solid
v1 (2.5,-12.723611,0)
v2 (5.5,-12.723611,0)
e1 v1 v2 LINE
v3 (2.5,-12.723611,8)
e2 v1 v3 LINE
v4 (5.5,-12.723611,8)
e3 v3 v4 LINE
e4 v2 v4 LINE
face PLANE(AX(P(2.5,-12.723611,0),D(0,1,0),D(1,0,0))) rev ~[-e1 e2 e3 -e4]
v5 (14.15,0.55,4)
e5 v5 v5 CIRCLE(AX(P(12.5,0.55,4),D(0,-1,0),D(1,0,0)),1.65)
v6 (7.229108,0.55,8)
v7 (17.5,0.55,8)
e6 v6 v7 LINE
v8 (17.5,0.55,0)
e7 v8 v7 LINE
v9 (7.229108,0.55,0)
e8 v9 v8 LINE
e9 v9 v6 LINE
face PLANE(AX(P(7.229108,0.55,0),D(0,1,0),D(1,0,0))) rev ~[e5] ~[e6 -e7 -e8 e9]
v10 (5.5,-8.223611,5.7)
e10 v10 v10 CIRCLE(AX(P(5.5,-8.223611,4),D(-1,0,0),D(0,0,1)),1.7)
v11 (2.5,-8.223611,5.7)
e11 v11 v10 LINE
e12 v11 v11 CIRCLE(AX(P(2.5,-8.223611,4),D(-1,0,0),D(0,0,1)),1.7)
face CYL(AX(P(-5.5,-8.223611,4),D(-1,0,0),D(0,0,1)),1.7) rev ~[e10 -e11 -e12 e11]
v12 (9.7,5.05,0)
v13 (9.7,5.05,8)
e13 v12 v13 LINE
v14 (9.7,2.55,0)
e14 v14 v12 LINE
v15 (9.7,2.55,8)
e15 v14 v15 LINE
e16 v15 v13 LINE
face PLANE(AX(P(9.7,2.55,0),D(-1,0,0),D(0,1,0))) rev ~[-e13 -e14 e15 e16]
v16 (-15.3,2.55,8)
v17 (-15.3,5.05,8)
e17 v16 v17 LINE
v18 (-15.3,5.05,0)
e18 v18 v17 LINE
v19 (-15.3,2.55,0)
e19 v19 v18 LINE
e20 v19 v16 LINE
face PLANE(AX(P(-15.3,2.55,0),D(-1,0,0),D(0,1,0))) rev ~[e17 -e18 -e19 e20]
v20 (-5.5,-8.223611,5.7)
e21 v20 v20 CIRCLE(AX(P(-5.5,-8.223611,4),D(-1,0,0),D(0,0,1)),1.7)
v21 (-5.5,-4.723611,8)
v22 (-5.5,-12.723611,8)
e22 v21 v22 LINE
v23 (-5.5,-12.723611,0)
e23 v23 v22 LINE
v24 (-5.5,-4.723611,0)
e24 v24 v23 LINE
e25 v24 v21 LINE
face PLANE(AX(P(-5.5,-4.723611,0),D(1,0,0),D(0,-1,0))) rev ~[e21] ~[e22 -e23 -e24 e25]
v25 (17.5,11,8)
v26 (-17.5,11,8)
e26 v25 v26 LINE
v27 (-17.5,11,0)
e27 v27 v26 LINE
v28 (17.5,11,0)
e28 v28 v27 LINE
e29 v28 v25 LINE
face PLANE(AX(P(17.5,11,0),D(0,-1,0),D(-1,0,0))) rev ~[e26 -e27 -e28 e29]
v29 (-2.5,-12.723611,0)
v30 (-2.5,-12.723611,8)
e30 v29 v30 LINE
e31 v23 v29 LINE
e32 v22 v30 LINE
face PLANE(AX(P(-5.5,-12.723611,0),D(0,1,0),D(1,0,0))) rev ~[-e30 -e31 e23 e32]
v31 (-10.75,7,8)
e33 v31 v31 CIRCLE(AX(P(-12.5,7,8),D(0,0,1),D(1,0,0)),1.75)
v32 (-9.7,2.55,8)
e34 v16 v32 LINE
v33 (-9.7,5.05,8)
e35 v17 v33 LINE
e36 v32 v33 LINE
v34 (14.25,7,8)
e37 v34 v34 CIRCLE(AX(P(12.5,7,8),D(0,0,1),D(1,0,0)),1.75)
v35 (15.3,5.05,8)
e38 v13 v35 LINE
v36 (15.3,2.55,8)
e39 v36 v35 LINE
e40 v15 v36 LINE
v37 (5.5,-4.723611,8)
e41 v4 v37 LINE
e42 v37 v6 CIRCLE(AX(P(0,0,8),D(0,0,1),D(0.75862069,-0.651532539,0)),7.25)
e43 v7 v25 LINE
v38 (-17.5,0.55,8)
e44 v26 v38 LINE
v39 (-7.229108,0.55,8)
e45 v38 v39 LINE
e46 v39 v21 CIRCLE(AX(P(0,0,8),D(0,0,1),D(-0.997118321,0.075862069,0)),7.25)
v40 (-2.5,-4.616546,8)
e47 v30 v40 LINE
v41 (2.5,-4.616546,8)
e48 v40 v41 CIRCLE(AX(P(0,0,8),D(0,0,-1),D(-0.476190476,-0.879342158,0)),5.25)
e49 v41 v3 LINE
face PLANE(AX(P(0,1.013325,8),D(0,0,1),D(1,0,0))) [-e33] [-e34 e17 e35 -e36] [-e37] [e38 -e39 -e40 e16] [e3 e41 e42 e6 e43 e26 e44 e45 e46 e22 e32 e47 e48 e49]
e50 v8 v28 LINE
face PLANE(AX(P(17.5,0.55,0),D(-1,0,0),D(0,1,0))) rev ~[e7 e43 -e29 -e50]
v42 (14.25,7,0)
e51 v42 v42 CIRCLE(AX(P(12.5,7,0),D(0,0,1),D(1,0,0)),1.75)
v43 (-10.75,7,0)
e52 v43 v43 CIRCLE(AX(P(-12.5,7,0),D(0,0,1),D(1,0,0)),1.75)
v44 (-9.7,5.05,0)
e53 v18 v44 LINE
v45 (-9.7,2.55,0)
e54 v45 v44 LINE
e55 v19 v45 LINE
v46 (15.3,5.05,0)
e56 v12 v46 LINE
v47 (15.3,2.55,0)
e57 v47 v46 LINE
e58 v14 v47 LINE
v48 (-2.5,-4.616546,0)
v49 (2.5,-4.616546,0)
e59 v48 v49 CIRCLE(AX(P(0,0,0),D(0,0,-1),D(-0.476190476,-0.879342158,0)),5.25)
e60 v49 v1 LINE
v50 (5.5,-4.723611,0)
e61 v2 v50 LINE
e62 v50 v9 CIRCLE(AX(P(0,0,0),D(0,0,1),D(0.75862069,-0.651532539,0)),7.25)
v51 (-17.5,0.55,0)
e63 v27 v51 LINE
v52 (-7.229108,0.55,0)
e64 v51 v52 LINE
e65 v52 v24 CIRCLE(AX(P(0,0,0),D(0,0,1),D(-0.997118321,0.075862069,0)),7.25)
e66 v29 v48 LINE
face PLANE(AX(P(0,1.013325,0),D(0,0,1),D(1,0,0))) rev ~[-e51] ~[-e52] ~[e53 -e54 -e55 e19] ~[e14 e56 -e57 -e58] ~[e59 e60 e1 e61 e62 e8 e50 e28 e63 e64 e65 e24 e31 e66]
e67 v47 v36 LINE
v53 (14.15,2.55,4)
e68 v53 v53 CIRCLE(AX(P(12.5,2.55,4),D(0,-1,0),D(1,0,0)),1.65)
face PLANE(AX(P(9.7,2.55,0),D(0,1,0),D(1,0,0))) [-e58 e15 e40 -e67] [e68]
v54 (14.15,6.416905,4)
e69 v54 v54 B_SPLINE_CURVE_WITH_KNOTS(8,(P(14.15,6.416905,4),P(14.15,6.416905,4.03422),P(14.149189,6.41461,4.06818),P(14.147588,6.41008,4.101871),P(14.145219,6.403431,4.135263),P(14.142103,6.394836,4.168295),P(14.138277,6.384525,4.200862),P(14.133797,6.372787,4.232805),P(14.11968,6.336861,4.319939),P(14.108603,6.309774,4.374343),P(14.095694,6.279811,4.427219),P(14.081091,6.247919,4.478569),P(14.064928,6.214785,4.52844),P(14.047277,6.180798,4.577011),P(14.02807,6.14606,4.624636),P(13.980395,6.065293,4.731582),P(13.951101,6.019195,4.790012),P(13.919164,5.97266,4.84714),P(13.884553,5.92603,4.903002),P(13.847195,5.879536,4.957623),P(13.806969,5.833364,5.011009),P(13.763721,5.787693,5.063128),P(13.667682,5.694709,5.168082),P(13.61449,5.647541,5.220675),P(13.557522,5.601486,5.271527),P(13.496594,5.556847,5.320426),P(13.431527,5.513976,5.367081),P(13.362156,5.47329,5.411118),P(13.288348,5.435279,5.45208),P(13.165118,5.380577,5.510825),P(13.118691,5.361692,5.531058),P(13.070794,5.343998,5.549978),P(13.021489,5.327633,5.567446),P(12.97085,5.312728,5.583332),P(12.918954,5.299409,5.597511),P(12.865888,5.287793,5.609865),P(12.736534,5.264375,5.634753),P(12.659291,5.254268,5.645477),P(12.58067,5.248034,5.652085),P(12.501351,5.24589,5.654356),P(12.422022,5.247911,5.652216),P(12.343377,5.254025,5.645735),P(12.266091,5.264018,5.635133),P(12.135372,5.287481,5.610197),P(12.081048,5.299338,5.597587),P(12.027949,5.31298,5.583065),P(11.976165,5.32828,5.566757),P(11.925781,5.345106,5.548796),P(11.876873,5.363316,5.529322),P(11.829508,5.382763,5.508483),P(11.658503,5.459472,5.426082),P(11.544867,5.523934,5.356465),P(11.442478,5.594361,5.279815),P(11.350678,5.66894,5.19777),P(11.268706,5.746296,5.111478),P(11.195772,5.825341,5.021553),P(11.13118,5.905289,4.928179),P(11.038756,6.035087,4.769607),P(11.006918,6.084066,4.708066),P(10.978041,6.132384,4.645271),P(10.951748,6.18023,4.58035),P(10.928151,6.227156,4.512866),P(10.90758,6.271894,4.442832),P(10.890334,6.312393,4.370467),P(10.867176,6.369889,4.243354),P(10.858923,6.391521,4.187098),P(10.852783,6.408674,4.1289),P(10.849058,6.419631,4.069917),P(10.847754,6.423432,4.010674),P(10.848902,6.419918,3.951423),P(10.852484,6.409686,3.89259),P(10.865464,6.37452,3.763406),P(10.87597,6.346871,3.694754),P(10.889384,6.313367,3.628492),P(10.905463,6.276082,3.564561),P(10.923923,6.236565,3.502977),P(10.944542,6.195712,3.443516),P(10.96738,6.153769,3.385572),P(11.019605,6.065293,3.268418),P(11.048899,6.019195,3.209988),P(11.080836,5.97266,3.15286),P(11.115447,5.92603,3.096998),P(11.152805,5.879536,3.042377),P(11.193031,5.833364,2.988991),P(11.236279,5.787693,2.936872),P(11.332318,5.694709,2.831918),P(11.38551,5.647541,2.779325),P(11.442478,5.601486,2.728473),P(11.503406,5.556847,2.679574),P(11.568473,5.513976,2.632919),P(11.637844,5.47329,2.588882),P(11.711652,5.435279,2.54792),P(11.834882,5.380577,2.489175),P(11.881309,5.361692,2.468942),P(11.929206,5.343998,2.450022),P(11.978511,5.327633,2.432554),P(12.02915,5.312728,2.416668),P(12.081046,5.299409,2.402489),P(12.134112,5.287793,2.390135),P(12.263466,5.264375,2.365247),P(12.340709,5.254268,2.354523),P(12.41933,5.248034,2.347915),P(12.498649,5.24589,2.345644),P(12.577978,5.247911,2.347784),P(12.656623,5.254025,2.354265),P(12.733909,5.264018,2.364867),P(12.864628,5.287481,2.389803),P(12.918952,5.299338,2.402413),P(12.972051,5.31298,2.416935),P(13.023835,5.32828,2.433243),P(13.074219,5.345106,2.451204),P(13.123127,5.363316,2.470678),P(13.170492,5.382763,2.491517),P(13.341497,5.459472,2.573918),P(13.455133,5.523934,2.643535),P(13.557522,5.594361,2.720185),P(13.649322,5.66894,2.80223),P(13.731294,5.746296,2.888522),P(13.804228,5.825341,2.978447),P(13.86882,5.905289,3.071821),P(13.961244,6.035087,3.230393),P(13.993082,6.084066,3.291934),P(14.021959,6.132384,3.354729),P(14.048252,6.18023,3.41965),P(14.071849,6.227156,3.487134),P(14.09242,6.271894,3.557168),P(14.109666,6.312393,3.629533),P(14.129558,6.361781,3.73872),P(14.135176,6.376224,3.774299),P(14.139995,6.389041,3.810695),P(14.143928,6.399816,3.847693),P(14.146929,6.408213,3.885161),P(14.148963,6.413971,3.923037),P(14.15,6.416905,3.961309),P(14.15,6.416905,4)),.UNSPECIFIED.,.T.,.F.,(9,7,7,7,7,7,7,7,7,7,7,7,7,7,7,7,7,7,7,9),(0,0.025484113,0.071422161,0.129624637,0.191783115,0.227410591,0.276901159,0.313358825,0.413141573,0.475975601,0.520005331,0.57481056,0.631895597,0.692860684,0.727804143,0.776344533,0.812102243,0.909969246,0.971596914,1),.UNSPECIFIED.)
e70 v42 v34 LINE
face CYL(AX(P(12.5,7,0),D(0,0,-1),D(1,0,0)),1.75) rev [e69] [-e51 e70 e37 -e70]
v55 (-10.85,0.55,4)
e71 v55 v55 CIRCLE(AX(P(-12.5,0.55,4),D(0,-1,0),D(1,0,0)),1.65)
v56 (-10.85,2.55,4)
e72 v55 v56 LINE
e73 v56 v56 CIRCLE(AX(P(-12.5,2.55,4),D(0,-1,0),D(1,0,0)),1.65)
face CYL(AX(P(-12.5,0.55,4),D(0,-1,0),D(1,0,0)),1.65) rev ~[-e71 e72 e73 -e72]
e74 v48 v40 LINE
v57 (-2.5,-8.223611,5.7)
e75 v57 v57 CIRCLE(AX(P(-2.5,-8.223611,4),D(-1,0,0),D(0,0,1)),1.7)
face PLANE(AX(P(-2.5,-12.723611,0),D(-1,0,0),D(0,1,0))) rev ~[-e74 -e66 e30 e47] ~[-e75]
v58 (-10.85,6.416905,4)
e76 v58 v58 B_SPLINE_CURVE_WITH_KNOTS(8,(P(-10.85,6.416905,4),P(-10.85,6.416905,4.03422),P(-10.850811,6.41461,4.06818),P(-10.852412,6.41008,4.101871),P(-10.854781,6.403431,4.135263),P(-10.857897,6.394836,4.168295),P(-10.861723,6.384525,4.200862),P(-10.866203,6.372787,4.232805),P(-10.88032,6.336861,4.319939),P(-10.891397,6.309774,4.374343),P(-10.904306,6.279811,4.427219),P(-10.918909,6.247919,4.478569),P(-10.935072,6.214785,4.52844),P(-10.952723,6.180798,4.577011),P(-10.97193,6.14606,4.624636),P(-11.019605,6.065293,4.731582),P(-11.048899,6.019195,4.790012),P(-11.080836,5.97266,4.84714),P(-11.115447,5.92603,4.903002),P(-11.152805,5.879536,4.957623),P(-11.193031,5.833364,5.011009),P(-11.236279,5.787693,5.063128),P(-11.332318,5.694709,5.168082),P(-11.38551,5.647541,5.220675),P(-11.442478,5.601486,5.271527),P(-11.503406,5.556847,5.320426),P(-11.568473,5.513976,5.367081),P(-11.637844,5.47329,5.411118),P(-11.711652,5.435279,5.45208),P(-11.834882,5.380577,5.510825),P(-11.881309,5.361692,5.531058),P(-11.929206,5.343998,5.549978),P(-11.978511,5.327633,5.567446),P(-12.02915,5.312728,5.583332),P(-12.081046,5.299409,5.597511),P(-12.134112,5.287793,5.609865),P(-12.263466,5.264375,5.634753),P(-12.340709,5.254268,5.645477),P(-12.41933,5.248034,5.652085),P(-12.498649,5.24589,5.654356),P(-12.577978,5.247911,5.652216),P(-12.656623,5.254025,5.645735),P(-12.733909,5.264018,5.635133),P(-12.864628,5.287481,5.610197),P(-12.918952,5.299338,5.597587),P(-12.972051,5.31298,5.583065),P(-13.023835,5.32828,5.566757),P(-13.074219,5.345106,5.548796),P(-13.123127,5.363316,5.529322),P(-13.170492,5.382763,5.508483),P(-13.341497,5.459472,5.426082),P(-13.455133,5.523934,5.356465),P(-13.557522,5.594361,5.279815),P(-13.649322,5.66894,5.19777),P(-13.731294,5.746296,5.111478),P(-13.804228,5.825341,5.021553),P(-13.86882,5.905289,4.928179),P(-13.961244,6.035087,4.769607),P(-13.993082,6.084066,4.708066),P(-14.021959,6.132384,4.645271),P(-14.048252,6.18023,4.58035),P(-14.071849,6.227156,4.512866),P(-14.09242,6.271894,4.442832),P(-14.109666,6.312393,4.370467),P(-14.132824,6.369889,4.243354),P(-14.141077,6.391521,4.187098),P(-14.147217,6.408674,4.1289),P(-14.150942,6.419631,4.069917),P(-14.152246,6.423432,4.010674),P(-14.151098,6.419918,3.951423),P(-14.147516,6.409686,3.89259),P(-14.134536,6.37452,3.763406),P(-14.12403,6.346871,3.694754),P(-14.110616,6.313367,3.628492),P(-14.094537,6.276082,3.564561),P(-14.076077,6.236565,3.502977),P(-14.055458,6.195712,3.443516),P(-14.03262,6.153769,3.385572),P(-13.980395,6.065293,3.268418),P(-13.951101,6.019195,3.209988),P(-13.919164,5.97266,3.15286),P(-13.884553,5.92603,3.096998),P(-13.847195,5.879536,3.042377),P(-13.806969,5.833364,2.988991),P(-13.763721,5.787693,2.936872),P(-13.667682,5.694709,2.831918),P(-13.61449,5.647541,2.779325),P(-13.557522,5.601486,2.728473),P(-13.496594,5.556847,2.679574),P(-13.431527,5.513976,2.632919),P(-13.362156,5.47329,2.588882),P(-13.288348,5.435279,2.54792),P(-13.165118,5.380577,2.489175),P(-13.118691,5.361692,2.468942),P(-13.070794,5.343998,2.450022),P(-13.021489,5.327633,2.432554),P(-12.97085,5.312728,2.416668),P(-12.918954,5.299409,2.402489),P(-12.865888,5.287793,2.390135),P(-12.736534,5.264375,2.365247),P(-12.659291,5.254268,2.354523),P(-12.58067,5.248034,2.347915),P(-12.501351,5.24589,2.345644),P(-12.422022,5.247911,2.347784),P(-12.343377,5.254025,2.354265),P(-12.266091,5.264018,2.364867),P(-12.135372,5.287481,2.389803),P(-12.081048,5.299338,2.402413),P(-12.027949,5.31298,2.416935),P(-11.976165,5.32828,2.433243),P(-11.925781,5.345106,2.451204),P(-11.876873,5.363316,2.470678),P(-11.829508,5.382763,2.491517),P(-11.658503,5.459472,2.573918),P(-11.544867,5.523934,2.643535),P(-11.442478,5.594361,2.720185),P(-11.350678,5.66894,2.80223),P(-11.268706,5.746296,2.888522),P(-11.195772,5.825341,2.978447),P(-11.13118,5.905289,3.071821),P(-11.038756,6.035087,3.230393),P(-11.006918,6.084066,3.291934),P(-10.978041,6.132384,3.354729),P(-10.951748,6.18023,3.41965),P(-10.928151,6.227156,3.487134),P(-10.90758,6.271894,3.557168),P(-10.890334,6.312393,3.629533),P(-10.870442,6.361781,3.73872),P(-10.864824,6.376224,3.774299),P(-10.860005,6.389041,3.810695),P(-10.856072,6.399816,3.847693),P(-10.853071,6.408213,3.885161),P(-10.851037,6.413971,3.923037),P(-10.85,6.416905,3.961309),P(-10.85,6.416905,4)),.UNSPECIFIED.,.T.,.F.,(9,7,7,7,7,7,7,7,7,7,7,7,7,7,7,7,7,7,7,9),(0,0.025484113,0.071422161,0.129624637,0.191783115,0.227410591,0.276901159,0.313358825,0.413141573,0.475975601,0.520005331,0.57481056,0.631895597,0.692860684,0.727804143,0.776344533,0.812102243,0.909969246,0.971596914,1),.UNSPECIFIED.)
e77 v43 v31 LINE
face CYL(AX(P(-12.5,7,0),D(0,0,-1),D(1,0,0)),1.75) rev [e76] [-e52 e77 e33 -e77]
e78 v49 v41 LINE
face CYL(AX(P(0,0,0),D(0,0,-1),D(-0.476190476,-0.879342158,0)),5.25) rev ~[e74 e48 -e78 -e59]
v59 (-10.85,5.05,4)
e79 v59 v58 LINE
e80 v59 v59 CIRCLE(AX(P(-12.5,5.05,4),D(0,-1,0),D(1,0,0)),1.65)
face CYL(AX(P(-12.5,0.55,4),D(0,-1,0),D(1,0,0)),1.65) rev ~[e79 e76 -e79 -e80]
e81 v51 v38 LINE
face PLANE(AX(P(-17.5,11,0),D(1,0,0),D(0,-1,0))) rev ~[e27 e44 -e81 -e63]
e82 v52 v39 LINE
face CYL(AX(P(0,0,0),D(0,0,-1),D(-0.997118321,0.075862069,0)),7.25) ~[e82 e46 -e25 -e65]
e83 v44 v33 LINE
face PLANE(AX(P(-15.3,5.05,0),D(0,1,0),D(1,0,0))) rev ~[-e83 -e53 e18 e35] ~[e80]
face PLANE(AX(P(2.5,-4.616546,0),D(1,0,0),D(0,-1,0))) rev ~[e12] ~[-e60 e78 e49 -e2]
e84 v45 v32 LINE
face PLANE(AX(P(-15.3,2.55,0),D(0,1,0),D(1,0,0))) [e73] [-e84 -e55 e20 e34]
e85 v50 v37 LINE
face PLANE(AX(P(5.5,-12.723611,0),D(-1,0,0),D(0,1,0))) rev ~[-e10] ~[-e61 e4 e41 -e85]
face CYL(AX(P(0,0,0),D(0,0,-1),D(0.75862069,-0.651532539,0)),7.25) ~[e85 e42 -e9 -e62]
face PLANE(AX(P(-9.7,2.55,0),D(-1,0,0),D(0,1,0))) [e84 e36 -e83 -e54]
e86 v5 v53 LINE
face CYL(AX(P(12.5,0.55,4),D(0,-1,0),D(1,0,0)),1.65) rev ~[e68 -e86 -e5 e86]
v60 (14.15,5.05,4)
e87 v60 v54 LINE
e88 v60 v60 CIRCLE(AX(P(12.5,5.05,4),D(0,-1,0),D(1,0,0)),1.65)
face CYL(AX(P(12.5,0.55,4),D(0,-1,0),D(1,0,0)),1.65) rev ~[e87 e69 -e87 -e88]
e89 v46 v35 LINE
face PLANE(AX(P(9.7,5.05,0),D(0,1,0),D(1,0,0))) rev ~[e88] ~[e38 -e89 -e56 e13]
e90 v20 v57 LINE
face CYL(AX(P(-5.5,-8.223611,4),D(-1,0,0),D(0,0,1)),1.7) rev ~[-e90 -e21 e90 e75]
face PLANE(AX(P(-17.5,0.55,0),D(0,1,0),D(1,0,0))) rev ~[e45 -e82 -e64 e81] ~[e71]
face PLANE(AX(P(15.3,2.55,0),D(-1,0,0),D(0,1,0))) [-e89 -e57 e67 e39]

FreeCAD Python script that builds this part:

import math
import FreeCAD as App
import Part
import Sketcher


def add_polygon(sketch, points):
    """Adds a closed chain of lines whose ends are joined by coincident constraints."""
    first, n = sketch.GeometryCount, len(points)
    for a, b in zip(points, points[1:] + points[:1]):
        sketch.addGeometry(Part.LineSegment(App.Vector(*a, 0), App.Vector(*b, 0)), False)
    for i in range(n):
        sketch.addConstraint(Sketcher.Constraint("Coincident", first + i, 2, first + (i + 1) % n, 1))

doc = App.newDocument("Part")
params = doc.addObject("Spreadsheet::Sheet", "Params")
for row, (alias, value) in enumerate([
    ("sketch1_diameter", "3.5 mm"),
    ("sketch1_width", "35 mm"),
    ("sketch1_width2", "3 mm"),
    ("sketch1_height", "8 mm"),
    ("sketch1_radius", "7.25 mm"),
    ("pad1_length", "8 mm"),
    ("sketch2_diameter", "3.3 mm"),
    ("pocket1_length", "7 mm"),
    ("sketch3_diameter", "3.4 mm"),
], start=1):
    params.set(f"A{row}", alias)
    params.set(f"B{row}", "=" + value)
    params.setAlias(f"B{row}", alias)

body = doc.addObject("PartDesign::Body", "Body")

# Sketch on XY plane
sketch1 = doc.addObject("Sketcher::SketchObject", "Sketch")
body.addObject(sketch1)
sketch1.AttachmentSupport = (doc.XY_Plane, [""])
sketch1.MapMode = "FlatFace"
sketch1.addGeometry(Part.LineSegment(App.Vector(17.5, 11, 0), App.Vector(-17.5, 11, 0)), False)  # 0
sketch1.addGeometry(Part.LineSegment(App.Vector(-17.5, 11, 0), App.Vector(-17.5, 0.55, 0)), False)  # 1
sketch1.addGeometry(Part.LineSegment(App.Vector(-17.5, 0.55, 0), App.Vector(-7.229108, 0.55, 0)), False)  # 2
sketch1.addGeometry(Part.ArcOfCircle(Part.Circle(App.Vector(0, 0, 0), App.Vector(0, 0, 1), 7.25), math.radians(175.649244), math.radians(220.657249)), False)  # 3
sketch1.addGeometry(Part.LineSegment(App.Vector(-5.5, -4.723611, 0), App.Vector(-5.5, -12.723611, 0)), False)  # 4
sketch1.addGeometry(Part.LineSegment(App.Vector(-5.5, -12.723611, 0), App.Vector(-2.5, -12.723611, 0)), False)  # 5
sketch1.addGeometry(Part.LineSegment(App.Vector(-2.5, -12.723611, 0), App.Vector(-2.5, -4.616546, 0)), False)  # 6
sketch1.addGeometry(Part.ArcOfCircle(Part.Circle(App.Vector(0, 0, 0), App.Vector(0, 0, 1), 5.25), math.radians(-61.56311), math.radians(241.56311)), False)  # 7
sketch1.addGeometry(Part.LineSegment(App.Vector(2.5, -4.616546, 0), App.Vector(2.5, -12.723611, 0)), False)  # 8
sketch1.addGeometry(Part.LineSegment(App.Vector(2.5, -12.723611, 0), App.Vector(5.5, -12.723611, 0)), False)  # 9
sketch1.addGeometry(Part.LineSegment(App.Vector(5.5, -12.723611, 0), App.Vector(5.5, -4.723611, 0)), False)  # 10
sketch1.addGeometry(Part.ArcOfCircle(Part.Circle(App.Vector(0, 0, 0), App.Vector(0, 0, 1), 7.25), math.radians(-40.657249), math.radians(4.350756)), False)  # 11
sketch1.addGeometry(Part.LineSegment(App.Vector(7.229108, 0.55, 0), App.Vector(17.5, 0.55, 0)), False)  # 12
sketch1.addGeometry(Part.LineSegment(App.Vector(17.5, 0.55, 0), App.Vector(17.5, 11, 0)), False)  # 13
add_polygon(sketch1, [(-9.7, 2.55), (-15.3, 2.55), (-15.3, 5.05), (-9.7, 5.05)])  # lines 14-17
add_polygon(sketch1, [(15.3, 2.55), (9.7, 2.55), (9.7, 5.05), (15.3, 5.05)])  # lines 18-21
sketch1.addGeometry(Part.Circle(App.Vector(-12.5, 7, 0), App.Vector(0, 0, 1), 1.75), False)  # 22
sketch1.addGeometry(Part.Circle(App.Vector(12.5, 7, 0), App.Vector(0, 0, 1), 1.75), False)  # 23
sketch1.addConstraint([
    Sketcher.Constraint("Coincident", 0, 2, 1, 1),
    Sketcher.Constraint("Coincident", 1, 2, 2, 1),
    Sketcher.Constraint("Coincident", 2, 2, 3, 1),
    Sketcher.Constraint("Coincident", 3, 2, 4, 1),
    Sketcher.Constraint("Coincident", 4, 2, 5, 1),
    Sketcher.Constraint("Coincident", 5, 2, 6, 1),
    Sketcher.Constraint("Coincident", 6, 2, 7, 2),
    Sketcher.Constraint("Coincident", 7, 1, 8, 1),
    Sketcher.Constraint("Coincident", 8, 2, 9, 1),
    Sketcher.Constraint("Coincident", 9, 2, 10, 1),
    Sketcher.Constraint("Coincident", 10, 2, 11, 1),
    Sketcher.Constraint("Coincident", 11, 2, 12, 1),
    Sketcher.Constraint("Coincident", 12, 2, 13, 1),
    Sketcher.Constraint("Coincident", 13, 2, 0, 1),
    Sketcher.Constraint("Horizontal", 0),
    Sketcher.Constraint("Vertical", 1),
    Sketcher.Constraint("Horizontal", 2),
    Sketcher.Constraint("Vertical", 4),
    Sketcher.Constraint("Horizontal", 5),
    Sketcher.Constraint("Vertical", 6),
    Sketcher.Constraint("Vertical", 8),
    Sketcher.Constraint("Horizontal", 9),
    Sketcher.Constraint("Vertical", 10),
    Sketcher.Constraint("Horizontal", 12),
    Sketcher.Constraint("Vertical", 13),
    Sketcher.Constraint("Horizontal", 14),
    Sketcher.Constraint("Vertical", 15),
    Sketcher.Constraint("Horizontal", 16),
    Sketcher.Constraint("Vertical", 17),
    Sketcher.Constraint("Horizontal", 18),
    Sketcher.Constraint("Vertical", 19),
    Sketcher.Constraint("Horizontal", 20),
    Sketcher.Constraint("Vertical", 21),
    Sketcher.Constraint("Coincident", 3, 3, -1, 1),
    Sketcher.Constraint("Coincident", 7, 3, -1, 1),
    Sketcher.Constraint("Coincident", 11, 3, -1, 1),
    Sketcher.Constraint("Equal", 3, 11),
    Sketcher.Constraint("Equal", 22, 23),
    Sketcher.Constraint("Symmetric", 22, 3, 23, 3, -2),
    Sketcher.Constraint("Symmetric", 5, 2, 8, 2, -2),
    Sketcher.Constraint("Symmetric", 1, 2, 12, 2, -2),
    Sketcher.Constraint("Symmetric", 17, 2, 18, 2, -2),
    Sketcher.Constraint("Symmetric", 15, 2, 20, 2, -2),
    Sketcher.Constraint("Horizontal", 3, 2, 10, 2),
    Sketcher.Constraint("Diameter", 22, 3.5),
    Sketcher.Constraint("DistanceX", 0, 2, 0, 1, 35.0),
    Sketcher.Constraint("DistanceX", 5, 1, 5, 2, 3.0),
    Sketcher.Constraint("DistanceY", 4, 2, 4, 1, 8.0),
    Sketcher.Constraint("Radius", 3, 7.25),
    Sketcher.Constraint("Radius", 7, 5.25),
    Sketcher.Constraint("DistanceX", 14, 2, 14, 1, 5.6),
    Sketcher.Constraint("DistanceY", 15, 1, 15, 2, 2.5),
    Sketcher.Constraint("DistanceY", -1, 1, 22, 3, 7.0),
    Sketcher.Constraint("DistanceY", -1, 1, 0, 2, 11.0),
    Sketcher.Constraint("DistanceX", 22, 3, 23, 3, 25.0),
    Sketcher.Constraint("DistanceX", 1, 2, 3, 2, 12.0),
    Sketcher.Constraint("DistanceY", 1, 2, 14, 2, 2.0),
    Sketcher.Constraint("DistanceY", 1, 2, 1, 1, 10.45),
    Sketcher.Constraint("DistanceX", 14, 2, -1, 1, 15.3),
])
sketch1.setExpression("Constraints[52]", "Params.sketch1_diameter")
sketch1.setExpression("Constraints[53]", "Params.sketch1_width")
sketch1.setExpression("Constraints[54]", "Params.sketch1_width2")
sketch1.setExpression("Constraints[55]", "Params.sketch1_height")
sketch1.setExpression("Constraints[56]", "Params.sketch1_radius")
pad1 = doc.addObject("PartDesign::Pad", "Pad")
body.addObject(pad1)
pad1.Profile = sketch1
pad1.setExpression("Length", "Params.pad1_length")

# Sketch on XZ plane
sketch2 = doc.addObject("Sketcher::SketchObject", "Sketch001")
body.addObject(sketch2)
sketch2.AttachmentSupport = (doc.XZ_Plane, [""])
sketch2.MapMode = "FlatFace"
sketch2.AttachmentOffset = App.Placement(App.Vector(0, 0, -0.55), App.Rotation())
sketch2.addGeometry([
    Part.Circle(App.Vector(-12.5, 4, 0), App.Vector(0, 0, 1), 1.65),
    Part.Circle(App.Vector(12.5, 4, 0), App.Vector(0, 0, 1), 1.65),
], False)
sketch2.addConstraint([
    Sketcher.Constraint("Equal", 0, 1),
    Sketcher.Constraint("Symmetric", 0, 3, 1, 3, -2),
    Sketcher.Constraint("Diameter", 0, 3.3),
    Sketcher.Constraint("DistanceY", -1, 1, 0, 3, 4.0),
    Sketcher.Constraint("DistanceX", 0, 3, 1, 3, 25.0),
])
sketch2.setExpression("Constraints[2]", "Params.sketch2_diameter")
pocket1 = doc.addObject("PartDesign::Pocket", "Pocket")
body.addObject(pocket1)
pocket1.Profile = sketch2
pocket1.setExpression("Length", "Params.pocket1_length")

# Sketch on YZ plane
sketch3 = doc.addObject("Sketcher::SketchObject", "Sketch002")
body.addObject(sketch3)
sketch3.AttachmentSupport = (doc.YZ_Plane, [""])
sketch3.MapMode = "FlatFace"
sketch3.AttachmentOffset = App.Placement(App.Vector(0, 0, -5.5), App.Rotation())
sketch3.addGeometry(Part.Circle(App.Vector(-8.223611, 4, 0), App.Vector(0, 0, 1), 1.7), False)
sketch3.addConstraint([
    Sketcher.Constraint("Diameter", 0, 3.4),
    Sketcher.Constraint("DistanceY", -1, 1, 0, 3, 4.0),
    Sketcher.Constraint("DistanceX", 0, 3, -1, 1, 8.223611),
])
sketch3.setExpression("Constraints[0]", "Params.sketch3_diameter")
pocket2 = doc.addObject("PartDesign::Pocket", "Pocket001")
body.addObject(pocket2)
pocket2.Profile = sketch3
pocket2.Type = "ThroughAll"
pocket2.Reversed = True

doc.recompute()
